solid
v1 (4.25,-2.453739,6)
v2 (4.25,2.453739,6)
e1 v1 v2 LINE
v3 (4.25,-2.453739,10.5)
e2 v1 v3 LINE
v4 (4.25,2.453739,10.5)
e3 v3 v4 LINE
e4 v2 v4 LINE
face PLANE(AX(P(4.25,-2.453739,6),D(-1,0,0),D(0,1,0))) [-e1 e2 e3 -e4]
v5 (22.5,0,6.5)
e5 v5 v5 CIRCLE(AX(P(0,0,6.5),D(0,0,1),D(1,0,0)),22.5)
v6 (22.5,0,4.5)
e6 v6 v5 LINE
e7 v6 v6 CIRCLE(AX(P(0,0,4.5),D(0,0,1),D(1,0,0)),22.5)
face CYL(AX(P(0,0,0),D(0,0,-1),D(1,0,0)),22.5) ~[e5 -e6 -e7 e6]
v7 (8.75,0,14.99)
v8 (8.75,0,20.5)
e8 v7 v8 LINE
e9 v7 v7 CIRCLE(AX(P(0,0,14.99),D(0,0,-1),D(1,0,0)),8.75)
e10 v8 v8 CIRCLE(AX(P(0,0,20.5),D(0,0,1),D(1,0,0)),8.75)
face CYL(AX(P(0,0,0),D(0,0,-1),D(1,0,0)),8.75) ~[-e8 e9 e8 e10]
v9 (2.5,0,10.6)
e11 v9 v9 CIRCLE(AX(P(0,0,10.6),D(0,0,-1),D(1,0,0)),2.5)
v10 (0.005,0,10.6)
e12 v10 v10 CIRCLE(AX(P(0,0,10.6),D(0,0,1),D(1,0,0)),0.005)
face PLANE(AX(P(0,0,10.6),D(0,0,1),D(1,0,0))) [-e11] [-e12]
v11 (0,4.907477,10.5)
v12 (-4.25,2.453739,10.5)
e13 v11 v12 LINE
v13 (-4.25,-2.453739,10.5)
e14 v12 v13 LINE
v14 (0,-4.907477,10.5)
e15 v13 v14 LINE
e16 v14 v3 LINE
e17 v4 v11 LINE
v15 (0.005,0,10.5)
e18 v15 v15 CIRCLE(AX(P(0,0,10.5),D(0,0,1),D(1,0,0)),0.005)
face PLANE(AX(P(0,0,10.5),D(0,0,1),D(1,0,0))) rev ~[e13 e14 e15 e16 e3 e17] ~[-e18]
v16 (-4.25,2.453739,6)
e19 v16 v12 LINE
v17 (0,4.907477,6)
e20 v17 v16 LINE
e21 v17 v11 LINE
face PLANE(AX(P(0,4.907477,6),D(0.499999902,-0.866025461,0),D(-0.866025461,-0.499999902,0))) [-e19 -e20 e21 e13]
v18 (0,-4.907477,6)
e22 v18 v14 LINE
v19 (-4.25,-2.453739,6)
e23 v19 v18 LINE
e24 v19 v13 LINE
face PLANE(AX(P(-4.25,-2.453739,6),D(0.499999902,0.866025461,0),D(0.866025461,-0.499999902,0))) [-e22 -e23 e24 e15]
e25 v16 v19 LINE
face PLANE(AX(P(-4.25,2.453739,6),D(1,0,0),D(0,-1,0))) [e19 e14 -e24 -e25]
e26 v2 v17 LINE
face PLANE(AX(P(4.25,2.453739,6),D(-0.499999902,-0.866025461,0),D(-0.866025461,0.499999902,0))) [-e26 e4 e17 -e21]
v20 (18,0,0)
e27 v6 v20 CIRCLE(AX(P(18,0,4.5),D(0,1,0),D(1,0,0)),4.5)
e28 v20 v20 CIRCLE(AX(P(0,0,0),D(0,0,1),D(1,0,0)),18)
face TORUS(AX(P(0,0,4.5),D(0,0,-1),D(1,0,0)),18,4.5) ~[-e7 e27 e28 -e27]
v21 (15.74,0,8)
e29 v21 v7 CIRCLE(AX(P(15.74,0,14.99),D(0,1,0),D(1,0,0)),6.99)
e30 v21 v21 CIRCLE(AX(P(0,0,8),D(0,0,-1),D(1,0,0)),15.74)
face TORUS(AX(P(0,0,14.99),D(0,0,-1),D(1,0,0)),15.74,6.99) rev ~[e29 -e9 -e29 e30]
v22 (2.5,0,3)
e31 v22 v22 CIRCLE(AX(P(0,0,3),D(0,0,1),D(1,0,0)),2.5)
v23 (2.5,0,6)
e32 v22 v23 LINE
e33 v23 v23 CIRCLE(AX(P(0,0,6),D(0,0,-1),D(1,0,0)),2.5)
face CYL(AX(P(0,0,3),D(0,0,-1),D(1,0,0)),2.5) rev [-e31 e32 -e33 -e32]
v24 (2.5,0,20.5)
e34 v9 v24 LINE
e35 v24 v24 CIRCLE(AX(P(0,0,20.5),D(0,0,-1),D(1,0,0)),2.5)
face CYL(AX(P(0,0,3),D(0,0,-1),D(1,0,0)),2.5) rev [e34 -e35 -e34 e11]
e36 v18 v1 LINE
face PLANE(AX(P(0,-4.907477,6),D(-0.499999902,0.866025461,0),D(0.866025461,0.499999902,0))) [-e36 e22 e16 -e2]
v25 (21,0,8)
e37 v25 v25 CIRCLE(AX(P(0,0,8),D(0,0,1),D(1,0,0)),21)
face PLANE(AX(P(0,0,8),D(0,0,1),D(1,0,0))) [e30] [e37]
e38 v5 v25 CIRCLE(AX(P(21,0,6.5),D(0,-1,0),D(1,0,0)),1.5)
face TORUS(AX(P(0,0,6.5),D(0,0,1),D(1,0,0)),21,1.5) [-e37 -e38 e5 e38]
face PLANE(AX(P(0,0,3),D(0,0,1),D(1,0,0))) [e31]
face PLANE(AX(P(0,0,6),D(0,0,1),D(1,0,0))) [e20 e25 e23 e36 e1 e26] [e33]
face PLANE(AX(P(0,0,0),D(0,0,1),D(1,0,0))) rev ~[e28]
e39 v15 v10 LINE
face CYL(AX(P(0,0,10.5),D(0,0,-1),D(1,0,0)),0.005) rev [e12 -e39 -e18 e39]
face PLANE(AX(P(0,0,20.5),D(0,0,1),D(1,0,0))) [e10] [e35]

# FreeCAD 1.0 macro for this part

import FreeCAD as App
import Part
import Sketcher

V = App.Vector
Q = App.Units.Quantity


def edges_at(feature, points):
    """Names of the edges that pass closest to the given points."""
    edges = feature.Shape.Edges
    near = lambda p: min(range(len(edges)), key=lambda i: edges[i].distToShape(Part.Vertex(*p))[0])
    return sorted({f"Edge{near(p) + 1}" for p in points})


def add_polygon(sketch, points):
    """Adds a closed chain of lines whose ends are joined by coincident constraints."""
    first, n = sketch.GeometryCount, len(points)
    for a, b in zip(points, points[1:] + points[:1]):
        sketch.addGeometry(Part.LineSegment(App.Vector(*a, 0), App.Vector(*b, 0)), False)
    for i in range(n):
        sketch.addConstraint(Sketcher.Constraint("Coincident", first + i, 2, first + (i + 1) % n, 1))

doc = App.newDocument("Part")
body = doc.addObject("PartDesign::Body", "Body")

# Sketch on XY plane
sketch1 = body.newObject("Sketcher::SketchObject", "Sketch")
sketch1.AttachmentSupport = (doc.getObject("XY_Plane"), [""])
sketch1.MapMode = "FlatFace"
sketch1.addGeometry(Part.Circle(V(0, 0, 0), V(0, 0, 1), 22), False)
sketch1.addConstraint([
    Sketcher.Constraint("Coincident", 0, 3, -1, 1),
    Sketcher.Constraint("Diameter", 0, Q("45 mm")),
])
pad1 = body.newObject("PartDesign::Pad", "Pad")
pad1.Profile = sketch1
pad1.Length = 8

# Sketch on XY plane
sketch2 = body.newObject("Sketcher::SketchObject", "Sketch001")
sketch2.AttachmentSupport = (doc.getObject("XY_Plane"), [""])
sketch2.MapMode = "FlatFace"
sketch2.addGeometry(Part.Circle(V(0, 0, 0), V(0, 0, 1), 9), False)
sketch2.addConstraint([
    Sketcher.Constraint("Coincident", 0, 3, -1, 1),
    Sketcher.Constraint("Diameter", 0, Q("17.5 mm")),
])
pad2 = body.newObject("PartDesign::Pad", "Pad001")
pad2.Profile = sketch2
pad2.Length = 20.5

# Sketch on XY plane
sketch3 = body.newObject("Sketcher::SketchObject", "Sketch002")
sketch3.AttachmentSupport = (doc.getObject("XY_Plane"), [""])
sketch3.MapMode = "FlatFace"
sketch3.addGeometry([
    Part.Circle(V(0, 0, 0), V(0, 0, 1), 6),
    Part.Circle(V(0, 0, 0), V(0, 0, 1), 5),
], False)
sketch3.addConstraint([
    Sketcher.Constraint("Coincident", 0, 3, -1, 1),
    Sketcher.Constraint("Coincident", 1, 3, -1, 1),
    Sketcher.Constraint("Diameter", 0, Q("12 mm")),
    Sketcher.Constraint("Diameter", 1, Q("10 mm")),
])
pad3 = body.newObject("PartDesign::Pad", "Pad002")
pad3.Profile = sketch3
pad3.Length = 13
doc.recompute()

fillet = body.newObject("PartDesign::Fillet", "Fillet")
fillet.Base = (pad3, edges_at(pad3, [(-8.75, 0, 8)]))
fillet.Radius = 6.99
doc.recompute()

fillet2 = body.newObject("PartDesign::Fillet", "Fillet001")
fillet2.Base = (fillet, edges_at(fillet, [(-22.5, 0, 0)]))
fillet2.Radius = 4.5

# Sketch on XY plane
sketch4 = body.newObject("Sketcher::SketchObject", "Sketch003")
sketch4.AttachmentSupport = (doc.getObject("XY_Plane"), [""])
sketch4.MapMode = "FlatFace"
sketch4.AttachmentOffset = App.Placement(V(0, 0, 6), App.Rotation())
add_polygon(sketch4, [(4.2, 2.5), (0, 4.9), (-4.2, 2.5), (-4.2, -2.5), (0, -4.9), (4.2, -2.5)])  # lines 0-5
sketch4.addConstraint([
    Sketcher.Constraint("Vertical", 2),
    Sketcher.Constraint("Vertical", 5),
    Sketcher.Constraint("Symmetric", 0, 2, 3, 2, -1, 1),
    Sketcher.Constraint("Symmetric", 1, 2, 4, 2, -1, 1),
    Sketcher.Constraint("PointOnObject", 0, 2, -2),
    Sketcher.Constraint("Parallel", 0, 3),
    Sketcher.Constraint("Horizontal", 2, 2, 4, 2),
    Sketcher.Constraint("Angle", 0, Q("150.000007 deg")),
    Sketcher.Constraint("DistanceX", 2, 2, 4, 2, Q("8.5 mm")),
    Sketcher.Constraint("DistanceY", 2, 2, 2, 1, Q("4.907478 mm")),
])
pocket1 = body.newObject("PartDesign::Pocket", "Pocket")
pocket1.Profile = sketch4
pocket1.Length = 4.5
pocket1.Reversed = True
doc.recompute()

fillet3 = body.newObject("PartDesign::Fillet", "Fillet002")
fillet3.Base = (pocket1, edges_at(pocket1, [(-22.5, 0, 8)]))
fillet3.Radius = 1.5

# Sketch on XY plane
sketch5 = body.newObject("Sketcher::SketchObject", "Sketch004")
sketch5.AttachmentSupport = (doc.getObject("XY_Plane"), [""])
sketch5.MapMode = "FlatFace"
sketch5.AttachmentOffset = App.Placement(V(0, 0, 3), App.Rotation())
sketch5.addGeometry(Part.Circle(V(0, 0, 0), V(0, 0, 1), 2.5), False)
sketch5.addConstraint([
    Sketcher.Constraint("Coincident", 0, 3, -1, 1),
    Sketcher.Constraint("Diameter", 0, Q("5 mm")),
])
pocket2 = body.newObject("PartDesign::Pocket", "Pocket001")
pocket2.Profile = sketch5
pocket2.Length = 18
pocket2.Reversed = True

# Sketch on XY plane
sketch6 = body.newObject("Sketcher::SketchObject", "Sketch005")
sketch6.AttachmentSupport = (doc.getObject("XY_Plane"), [""])
sketch6.MapMode = "FlatFace"
sketch6.AttachmentOffset = App.Placement(V(0, 0, 10.5), App.Rotation())
add_polygon(sketch6, [(-5, 5), (-5, -5), (5, -5), (5, 5)])  # lines 0-3
sketch6.addGeometry(Part.Circle(V(0, 0, 0), V(0, 0, 1), 0.005), False)  # 4
sketch6.addConstraint([
    Sketcher.Constraint("Vertical", 0),
    Sketcher.Constraint("Horizontal", 1),
    Sketcher.Constraint("Vertical", 2),
    Sketcher.Constraint("Horizontal", 3),
    Sketcher.Constraint("Coincident", 4, 3, -1, 1),
    Sketcher.Constraint("Symmetric", 0, 2, 2, 2, -1, 1),
    Sketcher.Constraint("Equal", 3, 0),
    Sketcher.Constraint("Diameter", 4, Q("0.01 mm")),
    Sketcher.Constraint("DistanceX", 1, 1, 1, 2, Q("10 mm")),
])
pad4 = body.newObject("PartDesign::Pad", "Pad003")
pad4.Profile = sketch6
pad4.Length = 0.1

doc.recompute()
